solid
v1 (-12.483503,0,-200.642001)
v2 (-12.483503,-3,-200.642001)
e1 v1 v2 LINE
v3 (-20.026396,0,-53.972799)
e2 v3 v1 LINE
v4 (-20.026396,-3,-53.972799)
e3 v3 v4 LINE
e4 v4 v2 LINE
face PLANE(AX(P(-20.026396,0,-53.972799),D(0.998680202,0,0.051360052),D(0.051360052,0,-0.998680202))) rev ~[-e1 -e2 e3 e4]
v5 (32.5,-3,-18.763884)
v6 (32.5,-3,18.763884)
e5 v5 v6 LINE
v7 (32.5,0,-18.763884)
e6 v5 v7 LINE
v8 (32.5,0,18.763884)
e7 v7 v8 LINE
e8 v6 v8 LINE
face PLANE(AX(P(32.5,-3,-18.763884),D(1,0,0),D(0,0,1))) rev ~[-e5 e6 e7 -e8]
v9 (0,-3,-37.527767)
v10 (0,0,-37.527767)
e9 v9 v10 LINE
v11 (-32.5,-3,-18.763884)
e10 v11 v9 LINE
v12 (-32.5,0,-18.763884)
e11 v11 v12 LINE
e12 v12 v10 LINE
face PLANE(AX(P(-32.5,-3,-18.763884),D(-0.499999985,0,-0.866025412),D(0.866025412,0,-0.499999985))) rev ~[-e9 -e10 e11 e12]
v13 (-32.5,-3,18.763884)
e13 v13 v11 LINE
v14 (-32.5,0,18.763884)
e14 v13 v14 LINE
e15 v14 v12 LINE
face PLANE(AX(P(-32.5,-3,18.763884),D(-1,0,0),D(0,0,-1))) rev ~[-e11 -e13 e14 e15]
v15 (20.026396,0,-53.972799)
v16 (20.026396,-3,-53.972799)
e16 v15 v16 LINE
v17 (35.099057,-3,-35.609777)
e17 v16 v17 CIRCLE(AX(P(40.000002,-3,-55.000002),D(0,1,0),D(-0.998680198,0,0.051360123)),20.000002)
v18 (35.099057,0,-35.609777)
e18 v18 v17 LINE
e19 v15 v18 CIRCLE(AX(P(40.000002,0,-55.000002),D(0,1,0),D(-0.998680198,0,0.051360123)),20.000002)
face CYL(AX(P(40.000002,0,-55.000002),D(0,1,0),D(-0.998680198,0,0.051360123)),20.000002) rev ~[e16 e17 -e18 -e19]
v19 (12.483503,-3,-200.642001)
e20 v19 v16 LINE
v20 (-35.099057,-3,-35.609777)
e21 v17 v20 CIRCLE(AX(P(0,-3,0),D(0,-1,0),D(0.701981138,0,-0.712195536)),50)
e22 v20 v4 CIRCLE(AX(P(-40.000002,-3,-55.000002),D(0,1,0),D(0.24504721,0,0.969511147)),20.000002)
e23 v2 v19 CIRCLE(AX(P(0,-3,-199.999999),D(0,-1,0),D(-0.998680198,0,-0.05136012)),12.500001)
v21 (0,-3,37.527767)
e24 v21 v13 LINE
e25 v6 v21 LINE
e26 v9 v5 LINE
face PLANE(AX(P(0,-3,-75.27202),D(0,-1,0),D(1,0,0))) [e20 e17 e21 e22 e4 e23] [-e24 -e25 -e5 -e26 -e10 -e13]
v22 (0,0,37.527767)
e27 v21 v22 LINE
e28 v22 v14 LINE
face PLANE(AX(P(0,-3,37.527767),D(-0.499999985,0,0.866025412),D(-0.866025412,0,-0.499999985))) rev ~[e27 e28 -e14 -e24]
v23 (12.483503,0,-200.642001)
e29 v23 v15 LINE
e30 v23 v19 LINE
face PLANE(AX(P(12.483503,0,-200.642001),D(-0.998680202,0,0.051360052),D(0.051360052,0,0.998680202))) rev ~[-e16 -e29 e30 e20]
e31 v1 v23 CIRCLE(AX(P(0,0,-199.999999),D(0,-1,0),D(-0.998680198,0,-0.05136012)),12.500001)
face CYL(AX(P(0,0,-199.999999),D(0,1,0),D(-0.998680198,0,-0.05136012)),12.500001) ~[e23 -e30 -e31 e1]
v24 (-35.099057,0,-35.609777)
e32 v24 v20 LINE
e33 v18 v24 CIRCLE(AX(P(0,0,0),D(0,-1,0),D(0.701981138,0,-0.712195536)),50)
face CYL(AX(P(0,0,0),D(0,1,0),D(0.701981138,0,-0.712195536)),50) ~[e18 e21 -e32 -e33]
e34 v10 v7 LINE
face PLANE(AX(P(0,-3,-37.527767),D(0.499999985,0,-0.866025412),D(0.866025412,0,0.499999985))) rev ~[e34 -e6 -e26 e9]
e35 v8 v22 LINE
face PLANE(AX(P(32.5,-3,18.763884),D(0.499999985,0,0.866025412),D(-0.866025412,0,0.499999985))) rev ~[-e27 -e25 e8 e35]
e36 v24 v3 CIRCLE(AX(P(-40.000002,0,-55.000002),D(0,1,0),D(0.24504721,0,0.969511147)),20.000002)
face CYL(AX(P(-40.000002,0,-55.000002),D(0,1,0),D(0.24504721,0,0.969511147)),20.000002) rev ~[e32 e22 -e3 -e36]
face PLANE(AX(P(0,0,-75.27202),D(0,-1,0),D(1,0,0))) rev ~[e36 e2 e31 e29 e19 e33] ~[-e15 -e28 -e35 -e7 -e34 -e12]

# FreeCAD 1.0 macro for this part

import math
import FreeCAD as App
import Part
import Sketcher
Q = App.Units.Quantity

doc = App.newDocument("Part")
params = doc.addObject("Spreadsheet::Sheet", "Params")
for row, (alias, value) in enumerate([
    ("sketch1_radius", "20.000002 mm"),
    ("sketch1_radius2", "50 mm"),
    ("sketch1_radius3", "12.500001 mm"),
    ("pad1_length", "3 mm"),
    ("pocket1_length", "25 mm"),
], start=1):
    params.set(f"A{row}", alias)
    params.set(f"B{row}", "=" + value)
    params.setAlias(f"B{row}", alias)

body = doc.addObject("PartDesign::Body", "Body")

# Sketch on XZ plane
sketch1 = doc.addObject("Sketcher::SketchObject", "Sketch")
body.addObject(sketch1)
sketch1.AttachmentSupport = (doc.XZ_Plane, [""])
sketch1.MapMode = "FlatFace"
sketch1.addGeometry([
    Part.ArcOfCircle(Part.Circle(App.Vector(40.000002, -55.000002, 0), App.Vector(0, 0, 1), 20.000002), math.radians(104.184624), math.radians(177.055986)),  # 0
    Part.ArcOfCircle(Part.Circle(App.Vector(0, 0, 0), App.Vector(0, 0, 1), 50), math.radians(-45.413832), math.radians(225.413832)),  # 1
    Part.ArcOfCircle(Part.Circle(App.Vector(-40.000002, -55.000002, 0), App.Vector(0, 0, 1), 20.000002), math.radians(2.944014), math.radians(75.815376)),  # 2
    Part.LineSegment(App.Vector(-20.026396, -53.972799, 0), App.Vector(-12.483503, -200.642001, 0)),  # 3
    Part.ArcOfCircle(Part.Circle(App.Vector(0, -199.999999, 0), App.Vector(0, 0, 1), 12.500001), math.radians(-177.055987), math.radians(-2.944013)),  # 4
    Part.LineSegment(App.Vector(12.483503, -200.642001, 0), App.Vector(20.026396, -53.972799, 0)),  # 5
], False)
sketch1.addConstraint([
    Sketcher.Constraint("Coincident", 0, 1, 1, 1),
    Sketcher.Constraint("Coincident", 1, 2, 2, 2),
    Sketcher.Constraint("Tangent", 2, 1, 3, 1),
    Sketcher.Constraint("Tangent", 3, 2, 4, 1),
    Sketcher.Constraint("Tangent", 4, 2, 5, 1),
    Sketcher.Constraint("Tangent", 5, 2, 0, 2),
    Sketcher.Constraint("Coincident", 1, 3, -1, 1),
    Sketcher.Constraint("Equal", 0, 2),
    Sketcher.Constraint("Symmetric", 0, 3, 2, 3, -2),
    Sketcher.Constraint("PointOnObject", 4, 3, -2),
    Sketcher.Constraint("Radius", 0, Q("20.000002 mm")),
    Sketcher.Constraint("Radius", 1, Q("50 mm")),
    Sketcher.Constraint("Radius", 4, Q("12.500001 mm")),
    Sketcher.Constraint("DistanceX", -1, 1, 0, 3, Q("40.000002 mm")),
    Sketcher.Constraint("DistanceY", 0, 3, -1, 1, Q("55.000002 mm")),
    Sketcher.Constraint("DistanceY", 4, 3, -1, 1, Q("199.999999 mm")),
])
sketch1.setExpression("Constraints[10]", "Params.sketch1_radius")
sketch1.setExpression("Constraints[11]", "Params.sketch1_radius2")
sketch1.setExpression("Constraints[12]", "Params.sketch1_radius3")
pad1 = doc.addObject("PartDesign::Pad", "Pad")
body.addObject(pad1)
pad1.Profile = sketch1
pad1.setExpression("Length", "Params.pad1_length")

# Sketch on XZ plane
sketch2 = doc.addObject("Sketcher::SketchObject", "Sketch001")
body.addObject(sketch2)
sketch2.AttachmentSupport = (doc.XZ_Plane, [""])
sketch2.MapMode = "FlatFace"
sketch2.AttachmentOffset = App.Placement(App.Vector(0, 0, 3), App.Rotation())
sketch2.addGeometry([
    Part.LineSegment(App.Vector(-32.5, 18.763884, 0), App.Vector(-32.5, -18.763884, 0)),  # 0
    Part.LineSegment(App.Vector(-32.5, -18.763884, 0), App.Vector(0, -37.527767, 0)),  # 1
    Part.LineSegment(App.Vector(0, -37.527767, 0), App.Vector(32.5, -18.763884, 0)),  # 2
    Part.LineSegment(App.Vector(32.5, -18.763884, 0), App.Vector(32.5, 18.763884, 0)),  # 3
    Part.LineSegment(App.Vector(32.5, 18.763884, 0), App.Vector(0, 37.527767, 0)),  # 4
    Part.LineSegment(App.Vector(0, 37.527767, 0), App.Vector(-32.5, 18.763884, 0)),  # 5
], False)
sketch2.addConstraint([
    Sketcher.Constraint("Coincident", 0, 2, 1, 1),
    Sketcher.Constraint("Coincident", 1, 2, 2, 1),
    Sketcher.Constraint("Coincident", 2, 2, 3, 1),
    Sketcher.Constraint("Coincident", 3, 2, 4, 1),
    Sketcher.Constraint("Coincident", 4, 2, 5, 1),
    Sketcher.Constraint("Coincident", 5, 2, 0, 1),
    Sketcher.Constraint("Vertical", 0),
    Sketcher.Constraint("Vertical", 3),
    Sketcher.Constraint("Symmetric", 0, 2, 3, 2, -1, 1),
    Sketcher.Constraint("Symmetric", 1, 2, 4, 2, -1, 1),
    Sketcher.Constraint("PointOnObject", 1, 2, -2),
    Sketcher.Constraint("Parallel", 2, 5),
    Sketcher.Constraint("Horizontal", 0, 2, 2, 2),
    Sketcher.Constraint("Angle", 1, Q("-29.999999 deg")),
    Sketcher.Constraint("DistanceX", 0, 2, 2, 2, Q("65 mm")),
    Sketcher.Constraint("DistanceY", 0, 2, 0, 1, Q("37.527768 mm")),
])
pocket1 = doc.addObject("PartDesign::Pocket", "Pocket")
body.addObject(pocket1)
pocket1.Profile = sketch2
pocket1.setExpression("Length", "Params.pocket1_length")

doc.recompute()
